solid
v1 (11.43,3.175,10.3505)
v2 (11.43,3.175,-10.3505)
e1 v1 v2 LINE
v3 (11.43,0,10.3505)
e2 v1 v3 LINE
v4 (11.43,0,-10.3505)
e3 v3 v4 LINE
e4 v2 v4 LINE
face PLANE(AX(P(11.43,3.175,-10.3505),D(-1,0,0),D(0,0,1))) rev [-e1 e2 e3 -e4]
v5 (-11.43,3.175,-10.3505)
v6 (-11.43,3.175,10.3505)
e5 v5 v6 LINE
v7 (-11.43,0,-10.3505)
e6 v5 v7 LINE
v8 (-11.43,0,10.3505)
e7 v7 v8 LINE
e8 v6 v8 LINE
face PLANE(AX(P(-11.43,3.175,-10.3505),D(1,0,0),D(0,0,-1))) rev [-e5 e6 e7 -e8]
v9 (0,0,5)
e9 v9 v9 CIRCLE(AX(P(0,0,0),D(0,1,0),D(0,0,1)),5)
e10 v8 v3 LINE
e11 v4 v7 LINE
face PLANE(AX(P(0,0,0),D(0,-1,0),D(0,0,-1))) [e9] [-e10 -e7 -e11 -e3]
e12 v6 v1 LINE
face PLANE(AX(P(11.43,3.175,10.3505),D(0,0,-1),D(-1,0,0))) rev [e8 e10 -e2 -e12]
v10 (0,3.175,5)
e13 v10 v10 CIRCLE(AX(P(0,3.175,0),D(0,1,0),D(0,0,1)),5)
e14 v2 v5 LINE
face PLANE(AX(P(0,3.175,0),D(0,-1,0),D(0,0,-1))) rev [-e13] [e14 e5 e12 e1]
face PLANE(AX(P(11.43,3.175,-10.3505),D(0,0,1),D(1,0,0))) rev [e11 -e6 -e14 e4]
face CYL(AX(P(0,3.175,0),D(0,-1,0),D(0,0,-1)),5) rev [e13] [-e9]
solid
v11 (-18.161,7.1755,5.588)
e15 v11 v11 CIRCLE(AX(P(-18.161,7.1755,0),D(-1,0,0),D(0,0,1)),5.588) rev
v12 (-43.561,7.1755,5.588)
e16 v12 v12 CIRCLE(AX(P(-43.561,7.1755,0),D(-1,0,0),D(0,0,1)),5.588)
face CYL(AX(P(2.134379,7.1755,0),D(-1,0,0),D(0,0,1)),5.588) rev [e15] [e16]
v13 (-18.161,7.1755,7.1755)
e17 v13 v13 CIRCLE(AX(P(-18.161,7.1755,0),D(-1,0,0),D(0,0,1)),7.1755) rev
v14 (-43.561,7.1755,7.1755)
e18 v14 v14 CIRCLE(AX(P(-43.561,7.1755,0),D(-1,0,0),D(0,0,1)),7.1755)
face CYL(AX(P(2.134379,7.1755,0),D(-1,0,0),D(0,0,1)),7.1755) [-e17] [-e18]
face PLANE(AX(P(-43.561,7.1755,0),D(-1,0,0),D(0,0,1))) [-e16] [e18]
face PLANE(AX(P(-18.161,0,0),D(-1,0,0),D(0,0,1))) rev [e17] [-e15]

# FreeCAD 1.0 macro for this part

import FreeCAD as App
import Part
import Sketcher

V = App.Vector
Q = App.Units.Quantity

doc = App.newDocument("Part")
body = doc.addObject("PartDesign::Body", "Body")

sketch1 = body.newObject("Sketcher::SketchObject", "Sketch")
sketch1.AttachmentSupport = (doc.getObject("XZ_Plane"), [""])
sketch1.MapMode = "FlatFace"
sketch1.addGeometry([
    Part.LineSegment(V(-11, -10, 0), V(-11, 10, 0)),
    Part.LineSegment(V(-11, 10, 0), V(11, 10, 0)),
    Part.LineSegment(V(11, 10, 0), V(11, -10, 0)),
    Part.LineSegment(V(11, -10, 0), V(-11, -10, 0)),
    Part.Circle(V(0, 0, 0), V(0, 0, 1), 5),
], False)
sketch1.addConstraint([
    Sketcher.Constraint("Coincident", 0, 2, 1, 1),
    Sketcher.Constraint("Coincident", 1, 2, 2, 1),
    Sketcher.Constraint("Coincident", 2, 2, 3, 1),
    Sketcher.Constraint("Coincident", 3, 2, 0, 1),
    Sketcher.Constraint("Vertical", 0),
    Sketcher.Constraint("Horizontal", 1),
    Sketcher.Constraint("Vertical", 2),
    Sketcher.Constraint("Horizontal", 3),
    Sketcher.Constraint("Coincident", 4, 3, -1, 1),
    Sketcher.Constraint("Symmetric", 0, 2, 2, 2, -1, 1),
    Sketcher.Constraint("DistanceX", 1, 1, 1, 2, Q("0.9 in")),
    Sketcher.Constraint("Diameter", 4, 10.0),
    Sketcher.Constraint("DistanceY", 0, 1, 0, 2, Q("0.815 in")),
])
pad1 = body.newObject("PartDesign::Pad", "Pad")
pad1.Profile = sketch1
pad1.Length = Q("0.125 in")
pad1.Reversed = True
body2 = doc.addObject("PartDesign::Body", "Body001")

sketch2 = body2.newObject("Sketcher::SketchObject", "Sketch001")
sketch2.AttachmentSupport = (doc.getObject("YZ_Plane001"), [""])
sketch2.MapMode = "FlatFace"
sketch2.AttachmentOffset = App.Placement(V(0, 0, -1.715 * 25.4), App.Rotation())
sketch2.addGeometry([
    Part.Circle(V(7, 0, 0), V(0, 0, 1), 7),
    Part.Circle(V(7, 0, 0), V(0, 0, 1), 6),
], False)
sketch2.addConstraint([
    Sketcher.Constraint("Coincident", 1, 3, 0, 3),
    Sketcher.Constraint("PointOnObject", 0, 3, -1),
    Sketcher.Constraint("Diameter", 1, Q("0.44 in")),
    Sketcher.Constraint("Diameter", 0, Q("0.565 in")),
    Sketcher.Constraint("DistanceX", -1, 1, 0, 3, Q("0.2825 in")),
])
pad2 = body2.newObject("PartDesign::Pad", "Pad001")
pad2.Profile = sketch2
pad2.Length = Q("1 in")

doc.recompute()
